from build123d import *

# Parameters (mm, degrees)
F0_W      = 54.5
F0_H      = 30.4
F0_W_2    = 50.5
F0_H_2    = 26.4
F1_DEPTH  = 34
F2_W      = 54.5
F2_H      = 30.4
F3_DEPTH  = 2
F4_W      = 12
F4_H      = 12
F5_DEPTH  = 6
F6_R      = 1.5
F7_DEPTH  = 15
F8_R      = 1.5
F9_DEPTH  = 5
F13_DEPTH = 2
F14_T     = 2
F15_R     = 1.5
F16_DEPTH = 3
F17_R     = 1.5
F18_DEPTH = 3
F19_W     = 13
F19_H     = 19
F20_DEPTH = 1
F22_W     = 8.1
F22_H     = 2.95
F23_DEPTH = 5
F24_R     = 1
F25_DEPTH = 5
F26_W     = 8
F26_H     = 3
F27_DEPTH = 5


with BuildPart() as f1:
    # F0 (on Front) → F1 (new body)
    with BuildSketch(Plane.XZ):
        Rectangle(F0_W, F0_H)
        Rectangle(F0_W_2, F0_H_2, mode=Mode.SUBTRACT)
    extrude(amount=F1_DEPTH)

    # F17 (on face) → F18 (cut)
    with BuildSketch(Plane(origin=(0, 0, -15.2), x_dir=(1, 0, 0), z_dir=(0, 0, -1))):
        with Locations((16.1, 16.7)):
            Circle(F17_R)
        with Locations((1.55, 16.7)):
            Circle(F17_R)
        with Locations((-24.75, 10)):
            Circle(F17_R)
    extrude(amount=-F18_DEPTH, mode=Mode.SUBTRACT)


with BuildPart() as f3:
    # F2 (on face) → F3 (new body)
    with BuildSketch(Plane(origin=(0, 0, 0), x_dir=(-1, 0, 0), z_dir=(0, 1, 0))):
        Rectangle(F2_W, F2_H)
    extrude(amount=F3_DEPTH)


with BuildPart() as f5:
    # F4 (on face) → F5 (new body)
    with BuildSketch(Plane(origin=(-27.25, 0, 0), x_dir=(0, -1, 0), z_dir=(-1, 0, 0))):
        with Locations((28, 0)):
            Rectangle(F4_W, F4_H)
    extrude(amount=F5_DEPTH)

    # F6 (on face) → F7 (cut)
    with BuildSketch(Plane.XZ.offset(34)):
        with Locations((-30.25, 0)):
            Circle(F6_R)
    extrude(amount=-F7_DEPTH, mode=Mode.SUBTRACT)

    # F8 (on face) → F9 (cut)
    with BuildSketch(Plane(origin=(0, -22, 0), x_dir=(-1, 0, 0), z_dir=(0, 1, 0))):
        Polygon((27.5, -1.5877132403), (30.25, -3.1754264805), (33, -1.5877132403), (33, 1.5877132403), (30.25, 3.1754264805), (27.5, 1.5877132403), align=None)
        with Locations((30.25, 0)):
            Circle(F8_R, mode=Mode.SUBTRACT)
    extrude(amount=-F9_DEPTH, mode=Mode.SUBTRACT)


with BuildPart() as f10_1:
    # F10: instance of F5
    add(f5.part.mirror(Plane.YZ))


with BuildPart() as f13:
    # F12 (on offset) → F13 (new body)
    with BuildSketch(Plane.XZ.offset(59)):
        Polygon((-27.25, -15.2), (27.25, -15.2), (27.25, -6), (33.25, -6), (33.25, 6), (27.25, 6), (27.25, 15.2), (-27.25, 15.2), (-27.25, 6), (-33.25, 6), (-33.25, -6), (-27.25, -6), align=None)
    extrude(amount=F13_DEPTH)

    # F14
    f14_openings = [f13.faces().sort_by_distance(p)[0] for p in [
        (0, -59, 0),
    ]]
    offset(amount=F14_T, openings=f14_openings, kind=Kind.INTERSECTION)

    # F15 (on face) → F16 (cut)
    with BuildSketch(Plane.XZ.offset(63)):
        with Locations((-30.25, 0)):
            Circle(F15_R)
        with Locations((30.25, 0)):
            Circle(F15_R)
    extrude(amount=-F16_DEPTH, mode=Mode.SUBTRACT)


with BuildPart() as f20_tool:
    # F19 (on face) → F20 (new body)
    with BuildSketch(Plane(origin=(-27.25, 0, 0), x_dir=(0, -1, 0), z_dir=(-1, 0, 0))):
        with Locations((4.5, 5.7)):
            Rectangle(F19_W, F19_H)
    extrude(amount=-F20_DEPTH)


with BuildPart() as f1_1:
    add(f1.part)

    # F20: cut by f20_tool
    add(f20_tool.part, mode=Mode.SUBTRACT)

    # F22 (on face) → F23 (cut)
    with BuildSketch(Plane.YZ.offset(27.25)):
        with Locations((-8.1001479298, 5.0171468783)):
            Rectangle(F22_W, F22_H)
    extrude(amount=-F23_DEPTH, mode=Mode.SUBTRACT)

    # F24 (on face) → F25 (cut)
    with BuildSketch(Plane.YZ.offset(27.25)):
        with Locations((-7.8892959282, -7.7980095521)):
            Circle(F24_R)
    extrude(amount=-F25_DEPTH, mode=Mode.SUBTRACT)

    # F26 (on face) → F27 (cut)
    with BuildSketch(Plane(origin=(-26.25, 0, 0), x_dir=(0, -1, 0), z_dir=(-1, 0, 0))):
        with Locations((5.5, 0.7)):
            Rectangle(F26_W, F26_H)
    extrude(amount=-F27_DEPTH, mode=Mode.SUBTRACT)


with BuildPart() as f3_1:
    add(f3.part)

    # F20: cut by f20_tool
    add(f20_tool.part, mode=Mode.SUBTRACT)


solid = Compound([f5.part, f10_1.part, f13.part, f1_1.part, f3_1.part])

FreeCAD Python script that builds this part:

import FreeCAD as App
import Part
import Sketcher

V = App.Vector
Q = App.Units.Quantity


def faces_at(feature, points):
    """Names of the faces that lie closest to the given points."""
    faces = feature.Shape.Faces
    near = lambda p: min(range(len(faces)), key=lambda i: faces[i].distToShape(Part.Vertex(*p))[0])
    return sorted({f"Face{near(p) + 1}" for p in points})

doc = App.newDocument("Part")
body = doc.addObject("PartDesign::Body", "Body")

sketch1 = body.newObject("Sketcher::SketchObject", "Sketch")
sketch1.AttachmentSupport = (doc.getObject("XZ_Plane"), [""])
sketch1.MapMode = "FlatFace"
sketch1.addGeometry(Part.LineSegment(V(-27.25, 15.2, 0), V(-27.25, -15.2, 0)), False)
sketch1.addGeometry(Part.LineSegment(V(-27.25, -15.2, 0), V(27.25, -15.2, 0)), False)
sketch1.addGeometry(Part.LineSegment(V(27.25, -15.2, 0), V(27.25, 15.2, 0)), False)
sketch1.addGeometry(Part.LineSegment(V(27.25, 15.2, 0), V(-27.25, 15.2, 0)), False)
sketch1.addGeometry(Part.LineSegment(V(25.25, -13.2, 0), V(-25.25, -13.2, 0)), False)
sketch1.addGeometry(Part.LineSegment(V(-25.25, -13.2, 0), V(-25.25, 13.2, 0)), False)
sketch1.addGeometry(Part.LineSegment(V(-25.25, 13.2, 0), V(25.25, 13.2, 0)), False)
sketch1.addGeometry(Part.LineSegment(V(25.25, 13.2, 0), V(25.25, -13.2, 0)), False)
sketch1.addConstraint(Sketcher.Constraint("Coincident", 0, 2, 1, 1))
sketch1.addConstraint(Sketcher.Constraint("Coincident", 1, 2, 2, 1))
sketch1.addConstraint(Sketcher.Constraint("Coincident", 2, 2, 3, 1))
sketch1.addConstraint(Sketcher.Constraint("Coincident", 3, 2, 0, 1))
sketch1.addConstraint(Sketcher.Constraint("Coincident", 4, 2, 5, 1))
sketch1.addConstraint(Sketcher.Constraint("Coincident", 5, 2, 6, 1))
sketch1.addConstraint(Sketcher.Constraint("Coincident", 6, 2, 7, 1))
sketch1.addConstraint(Sketcher.Constraint("Coincident", 7, 2, 4, 1))
sketch1.addConstraint(Sketcher.Constraint("Vertical", 0))
sketch1.addConstraint(Sketcher.Constraint("Horizontal", 1))
sketch1.addConstraint(Sketcher.Constraint("Vertical", 2))
sketch1.addConstraint(Sketcher.Constraint("Horizontal", 3))
sketch1.addConstraint(Sketcher.Constraint("Horizontal", 4))
sketch1.addConstraint(Sketcher.Constraint("Vertical", 5))
sketch1.addConstraint(Sketcher.Constraint("Horizontal", 6))
sketch1.addConstraint(Sketcher.Constraint("Vertical", 7))
sketch1.addConstraint(Sketcher.Constraint("Symmetric", 0, 2, 2, 2, -1, 1))
sketch1.addConstraint(Sketcher.Constraint("Symmetric", 4, 2, 6, 2, -1, 1))
sketch1.addConstraint(Sketcher.Constraint("DistanceX", 1, 1, 1, 2, 54.5))
sketch1.addConstraint(Sketcher.Constraint("DistanceX", 4, 2, 4, 1, 50.5))
sketch1.addConstraint(Sketcher.Constraint("DistanceY", 0, 2, 0, 1, 30.4))
sketch1.addConstraint(Sketcher.Constraint("DistanceY", 5, 1, 5, 2, 26.4))
pad1 = body.newObject("PartDesign::Pad", "Pad")
pad1.Profile = sketch1
pad1.Length = 34

sketch2 = body.newObject("Sketcher::SketchObject", "Sketch001")
sketch2.AttachmentSupport = (doc.getObject("XY_Plane"), [""])
sketch2.MapMode = "FlatFace"
sketch2.AttachmentOffset = App.Placement(V(0, 0, -15.2), App.Rotation())
sketch2.addGeometry(Part.Circle(V(16.1, -16.7, 0), V(0, 0, 1), 1.5), False)
sketch2.addGeometry(Part.Circle(V(1.55, -16.7, 0), V(0, 0, 1), 1.5), False)
sketch2.addGeometry(Part.Circle(V(-24.75, -10, 0), V(0, 0, 1), 1.5), False)
sketch2.addConstraint(Sketcher.Constraint("Equal", 0, 1))
sketch2.addConstraint(Sketcher.Constraint("Equal", 1, 2))
sketch2.addConstraint(Sketcher.Constraint("Horizontal", 0, 3, 1, 3))
sketch2.addConstraint(Sketcher.Constraint("Diameter", 0, 3.0))
sketch2.addConstraint(Sketcher.Constraint("DistanceY", 2, 3, -1, 1, 10.0))
sketch2.addConstraint(Sketcher.Constraint("DistanceX", -1, 1, 0, 3, 16.1))
sketch2.addConstraint(Sketcher.Constraint("DistanceY", 0, 3, -1, 1, 16.7))
sketch2.addConstraint(Sketcher.Constraint("DistanceX", 2, 3, 1, 3, 26.3))
sketch2.addConstraint(Sketcher.Constraint("DistanceX", -1, 1, 1, 3, 1.55))
pocket1 = body.newObject("PartDesign::Pocket", "Pocket")
pocket1.Profile = sketch2
pocket1.Length = 3
pocket1.Reversed = True
body2 = doc.addObject("PartDesign::Body", "Body001")

sketch3 = body2.newObject("Sketcher::SketchObject", "Sketch002")
sketch3.AttachmentSupport = (doc.getObject("XZ_Plane001"), [""])
sketch3.MapMode = "FlatFace"
sketch3.addGeometry(Part.LineSegment(V(27.25, 15.2, 0), V(27.25, -15.2, 0)), False)
sketch3.addGeometry(Part.LineSegment(V(27.25, -15.2, 0), V(-27.25, -15.2, 0)), False)
sketch3.addGeometry(Part.LineSegment(V(-27.25, -15.2, 0), V(-27.25, 15.2, 0)), False)
sketch3.addGeometry(Part.LineSegment(V(-27.25, 15.2, 0), V(27.25, 15.2, 0)), False)
sketch3.addConstraint(Sketcher.Constraint("Coincident", 0, 2, 1, 1))
sketch3.addConstraint(Sketcher.Constraint("Coincident", 1, 2, 2, 1))
sketch3.addConstraint(Sketcher.Constraint("Coincident", 2, 2, 3, 1))
sketch3.addConstraint(Sketcher.Constraint("Coincident", 3, 2, 0, 1))
sketch3.addConstraint(Sketcher.Constraint("Vertical", 0))
sketch3.addConstraint(Sketcher.Constraint("Horizontal", 1))
sketch3.addConstraint(Sketcher.Constraint("Vertical", 2))
sketch3.addConstraint(Sketcher.Constraint("Horizontal", 3))
sketch3.addConstraint(Sketcher.Constraint("Symmetric", 0, 2, 2, 2, -1, 1))
sketch3.addConstraint(Sketcher.Constraint("DistanceX", 1, 2, 1, 1, 54.5))
sketch3.addConstraint(Sketcher.Constraint("DistanceY", 0, 2, 0, 1, 30.4))
pad2 = body2.newObject("PartDesign::Pad", "Pad001")
pad2.Profile = sketch3
pad2.Length = 2
pad2.Reversed = True
body3 = doc.addObject("PartDesign::Body", "Body002")

sketch4 = body3.newObject("Sketcher::SketchObject", "Sketch003")
sketch4.AttachmentSupport = (doc.getObject("YZ_Plane002"), [""])
sketch4.MapMode = "FlatFace"
sketch4.AttachmentOffset = App.Placement(V(0, 0, -27.25), App.Rotation())
sketch4.addGeometry(Part.LineSegment(V(-22, 6, 0), V(-22, -6, 0)), False)
sketch4.addGeometry(Part.LineSegment(V(-22, -6, 0), V(-34, -6, 0)), False)
sketch4.addGeometry(Part.LineSegment(V(-34, -6, 0), V(-34, 6, 0)), False)
sketch4.addGeometry(Part.LineSegment(V(-34, 6, 0), V(-22, 6, 0)), False)
sketch4.addConstraint(Sketcher.Constraint("Coincident", 0, 2, 1, 1))
sketch4.addConstraint(Sketcher.Constraint("Coincident", 1, 2, 2, 1))
sketch4.addConstraint(Sketcher.Constraint("Coincident", 2, 2, 3, 1))
sketch4.addConstraint(Sketcher.Constraint("Coincident", 3, 2, 0, 1))
sketch4.addConstraint(Sketcher.Constraint("Vertical", 0))
sketch4.addConstraint(Sketcher.Constraint("Horizontal", 1))
sketch4.addConstraint(Sketcher.Constraint("Vertical", 2))
sketch4.addConstraint(Sketcher.Constraint("Horizontal", 3))
sketch4.addConstraint(Sketcher.Constraint("Equal", 3, 0))
sketch4.addConstraint(Sketcher.Constraint("DistanceX", 1, 2, 1, 1, 12.0))
sketch4.addConstraint(Sketcher.Constraint("DistanceX", 0, 2, -1, 1, 22.0))
sketch4.addConstraint(Sketcher.Constraint("DistanceY", 0, 2, -1, 1, 6.0))
pad3 = body3.newObject("PartDesign::Pad", "Pad002")
pad3.Profile = sketch4
pad3.Length = 6
pad3.Reversed = True

sketch5 = body3.newObject("Sketcher::SketchObject", "Sketch004")
sketch5.AttachmentSupport = (doc.getObject("XZ_Plane002"), [""])
sketch5.MapMode = "FlatFace"
sketch5.AttachmentOffset = App.Placement(V(0, 0, 34), App.Rotation())
sketch5.addGeometry(Part.Circle(V(-30.25, 0, 0), V(0, 0, 1), 1.5), False)
sketch5.addConstraint(Sketcher.Constraint("PointOnObject", 0, 3, -1))
sketch5.addConstraint(Sketcher.Constraint("Diameter", 0, 3.0))
sketch5.addConstraint(Sketcher.Constraint("DistanceX", 0, 3, -1, 1, 30.25))
pocket2 = body3.newObject("PartDesign::Pocket", "Pocket001")
pocket2.Profile = sketch5
pocket2.Length = 15

sketch6 = body3.newObject("Sketcher::SketchObject", "Sketch005")
sketch6.AttachmentSupport = (doc.getObject("XZ_Plane002"), [""])
sketch6.MapMode = "FlatFace"
sketch6.AttachmentOffset = App.Placement(V(0, 0, 22), App.Rotation())
sketch6.addGeometry(Part.LineSegment(V(-27.5, -1.587713, 0), V(-30.25, -3.175426, 0)), False)
sketch6.addGeometry(Part.LineSegment(V(-30.25, -3.175426, 0), V(-33, -1.587713, 0)), False)
sketch6.addGeometry(Part.LineSegment(V(-33, -1.587713, 0), V(-33, 1.587713, 0)), False)
sketch6.addGeometry(Part.LineSegment(V(-33, 1.587713, 0), V(-30.25, 3.175426, 0)), False)
sketch6.addGeometry(Part.LineSegment(V(-30.25, 3.175426, 0), V(-27.5, 1.587713, 0)), False)
sketch6.addGeometry(Part.LineSegment(V(-27.5, 1.587713, 0), V(-27.5, -1.587713, 0)), False)
sketch6.addGeometry(Part.Circle(V(-30.25, 0, 0), V(0, 0, 1), 1.5), False)
sketch6.addConstraint(Sketcher.Constraint("Coincident", 0, 2, 1, 1))
sketch6.addConstraint(Sketcher.Constraint("Coincident", 1, 2, 2, 1))
sketch6.addConstraint(Sketcher.Constraint("Coincident", 2, 2, 3, 1))
sketch6.addConstraint(Sketcher.Constraint("Coincident", 3, 2, 4, 1))
sketch6.addConstraint(Sketcher.Constraint("Coincident", 4, 2, 5, 1))
sketch6.addConstraint(Sketcher.Constraint("Coincident", 5, 2, 0, 1))
sketch6.addConstraint(Sketcher.Constraint("Vertical", 2))
sketch6.addConstraint(Sketcher.Constraint("Vertical", 5))
sketch6.addConstraint(Sketcher.Constraint("Symmetric", 0, 2, 3, 2, -1))
sketch6.addConstraint(Sketcher.Constraint("PointOnObject", 6, 3, -1))
sketch6.addConstraint(Sketcher.Constraint("Parallel", 0, 3))
sketch6.addConstraint(Sketcher.Constraint("Parallel", 1, 4))
sketch6.addConstraint(Sketcher.Constraint("Horizontal", 2, 2, 4, 2))
sketch6.addConstraint(Sketcher.Constraint("Horizontal", 1, 2, 5, 2))
sketch6.addConstraint(Sketcher.Constraint("Vertical", 6, 3, 0, 2))
sketch6.addConstraint(Sketcher.Constraint("Diameter", 6, 3.0))
sketch6.addConstraint(Sketcher.Constraint("Angle", 0, Q("-150 deg")))
sketch6.addConstraint(Sketcher.Constraint("DistanceX", 1, 2, -1, 1, 33.0))
sketch6.addConstraint(Sketcher.Constraint("DistanceX", 4, 2, -1, 1, 27.5))
sketch6.addConstraint(Sketcher.Constraint("DistanceY", 2, 1, 2, 2, 3.175426))
pocket3 = body3.newObject("PartDesign::Pocket", "Pocket002")
pocket3.Profile = sketch6
pocket3.Length = 5
pocket3.Reversed = True
body4 = doc.addObject("PartDesign::Body", "Body003")
doc.recompute()

mirroring = doc.addObject("Part::Mirroring", "Mirroring")
mirroring.Source = body3
mirroring.Base = V(0, 0, 0)
mirroring.Normal = V(1, 0, 0)
body4.BaseFeature = mirroring
doc.recompute()
body5 = doc.addObject("PartDesign::Body", "Body004")

sketch7 = body5.newObject("Sketcher::SketchObject", "Sketch006")
sketch7.AttachmentSupport = (doc.getObject("XZ_Plane004"), [""])
sketch7.MapMode = "FlatFace"
sketch7.AttachmentOffset = App.Placement(V(0, 0, 59), App.Rotation())
sketch7.addGeometry(Part.LineSegment(V(-27.25, -15.2, 0), V(27.25, -15.2, 0)), False)
sketch7.addGeometry(Part.LineSegment(V(27.25, -15.2, 0), V(27.25, -6, 0)), False)
sketch7.addGeometry(Part.LineSegment(V(27.25, -6, 0), V(33.25, -6, 0)), False)
sketch7.addGeometry(Part.LineSegment(V(33.25, -6, 0), V(33.25, 6, 0)), False)
sketch7.addGeometry(Part.LineSegment(V(33.25, 6, 0), V(27.25, 6, 0)), False)
sketch7.addGeometry(Part.LineSegment(V(27.25, 6, 0), V(27.25, 15.2, 0)), False)
sketch7.addGeometry(Part.LineSegment(V(27.25, 15.2, 0), V(-27.25, 15.2, 0)), False)
sketch7.addGeometry(Part.LineSegment(V(-27.25, 15.2, 0), V(-27.25, 6, 0)), False)
sketch7.addGeometry(Part.LineSegment(V(-27.25, 6, 0), V(-33.25, 6, 0)), False)
sketch7.addGeometry(Part.LineSegment(V(-33.25, 6, 0), V(-33.25, -6, 0)), False)
sketch7.addGeometry(Part.LineSegment(V(-33.25, -6, 0), V(-27.25, -6, 0)), False)
sketch7.addGeometry(Part.LineSegment(V(-27.25, -6, 0), V(-27.25, -15.2, 0)), False)
sketch7.addConstraint(Sketcher.Constraint("Coincident", 0, 2, 1, 1))
sketch7.addConstraint(Sketcher.Constraint("Coincident", 1, 2, 2, 1))
sketch7.addConstraint(Sketcher.Constraint("Coincident", 2, 2, 3, 1))
sketch7.addConstraint(Sketcher.Constraint("Coincident", 3, 2, 4, 1))
sketch7.addConstraint(Sketcher.Constraint("Coincident", 4, 2, 5, 1))
sketch7.addConstraint(Sketcher.Constraint("Coincident", 5, 2, 6, 1))
sketch7.addConstraint(Sketcher.Constraint("Coincident", 6, 2, 7, 1))
sketch7.addConstraint(Sketcher.Constraint("Coincident", 7, 2, 8, 1))
sketch7.addConstraint(Sketcher.Constraint("Coincident", 8, 2, 9, 1))
sketch7.addConstraint(Sketcher.Constraint("Coincident", 9, 2, 10, 1))
sketch7.addConstraint(Sketcher.Constraint("Coincident", 10, 2, 11, 1))
sketch7.addConstraint(Sketcher.Constraint("Coincident", 11, 2, 0, 1))
sketch7.addConstraint(Sketcher.Constraint("Horizontal", 0))
sketch7.addConstraint(Sketcher.Constraint("Vertical", 1))
sketch7.addConstraint(Sketcher.Constraint("Horizontal", 2))
sketch7.addConstraint(Sketcher.Constraint("Vertical", 3))
sketch7.addConstraint(Sketcher.Constraint("Horizontal", 4))
sketch7.addConstraint(Sketcher.Constraint("Vertical", 5))
sketch7.addConstraint(Sketcher.Constraint("Horizontal", 6))
sketch7.addConstraint(Sketcher.Constraint("Vertical", 7))
sketch7.addConstraint(Sketcher.Constraint("Horizontal", 8))
sketch7.addConstraint(Sketcher.Constraint("Vertical", 9))
sketch7.addConstraint(Sketcher.Constraint("Horizontal", 10))
sketch7.addConstraint(Sketcher.Constraint("Vertical", 11))
sketch7.addConstraint(Sketcher.Constraint("Symmetric", 0, 2, 6, 2, -1, 1))
sketch7.addConstraint(Sketcher.Constraint("Symmetric", 2, 2, 8, 2, -1, 1))
sketch7.addConstraint(Sketcher.Constraint("Symmetric", 4, 2, 10, 2, -1, 1))
sketch7.addConstraint(Sketcher.Constraint("Symmetric", 4, 2, 7, 2, -2))
sketch7.addConstraint(Sketcher.Constraint("DistanceX", 2, 1, 2, 2, 6.0))
sketch7.addConstraint(Sketcher.Constraint("DistanceY", 3, 1, 3, 2, 12.0))
sketch7.addConstraint(Sketcher.Constraint("DistanceX", 0, 1, 0, 2, 54.5))
sketch7.addConstraint(Sketcher.Constraint("DistanceY", 1, 1, 1, 2, 9.2))
pad4 = body5.newObject("PartDesign::Pad", "Pad003")
pad4.Profile = sketch7
pad4.Length = 2
doc.recompute()

thickness = body5.newObject("PartDesign::Thickness", "Thickness")
thickness.Base = (pad4, faces_at(pad4, [(0, -59, 0)]))
thickness.Value = 2
thickness.Reversed = False
thickness.Join = "Intersection"

sketch8 = body5.newObject("Sketcher::SketchObject", "Sketch007")
sketch8.AttachmentSupport = (doc.getObject("XZ_Plane004"), [""])
sketch8.MapMode = "FlatFace"
sketch8.AttachmentOffset = App.Placement(V(0, 0, 63), App.Rotation())
sketch8.addGeometry(Part.Circle(V(-30.25, 0, 0), V(0, 0, 1), 1.5), False)
sketch8.addGeometry(Part.Circle(V(30.25, 0, 0), V(0, 0, 1), 1.5), False)
sketch8.addConstraint(Sketcher.Constraint("Equal", 0, 1))
sketch8.addConstraint(Sketcher.Constraint("Symmetric", 0, 3, 1, 3, -1, 1))
sketch8.addConstraint(Sketcher.Constraint("PointOnObject", 0, 3, -1))
sketch8.addConstraint(Sketcher.Constraint("Diameter", 0, 3.0))
sketch8.addConstraint(Sketcher.Constraint("DistanceX", 0, 3, 1, 3, 60.5))
pocket4 = body5.newObject("PartDesign::Pocket", "Pocket003")
pocket4.Profile = sketch8
pocket4.Length = 3
body6 = doc.addObject("PartDesign::Body", "Body005")

sketch9 = body6.newObject("Sketcher::SketchObject", "Sketch008")
sketch9.AttachmentSupport = (doc.getObject("YZ_Plane005"), [""])
sketch9.MapMode = "FlatFace"
sketch9.AttachmentOffset = App.Placement(V(0, 0, -27.25), App.Rotation())
sketch9.addGeometry(Part.LineSegment(V(2, 15.2, 0), V(2, -3.8, 0)), False)
sketch9.addGeometry(Part.LineSegment(V(2, -3.8, 0), V(-11, -3.8, 0)), False)
sketch9.addGeometry(Part.LineSegment(V(-11, -3.8, 0), V(-11, 15.2, 0)), False)
sketch9.addGeometry(Part.LineSegment(V(-11, 15.2, 0), V(2, 15.2, 0)), False)
sketch9.addConstraint(Sketcher.Constraint("Coincident", 0, 2, 1, 1))
sketch9.addConstraint(Sketcher.Constraint("Coincident", 1, 2, 2, 1))
sketch9.addConstraint(Sketcher.Constraint("Coincident", 2, 2, 3, 1))
sketch9.addConstraint(Sketcher.Constraint("Coincident", 3, 2, 0, 1))
sketch9.addConstraint(Sketcher.Constraint("Vertical", 0))
sketch9.addConstraint(Sketcher.Constraint("Horizontal", 1))
sketch9.addConstraint(Sketcher.Constraint("Vertical", 2))
sketch9.addConstraint(Sketcher.Constraint("Horizontal", 3))
sketch9.addConstraint(Sketcher.Constraint("DistanceX", 1, 2, 1, 1, 13.0))
sketch9.addConstraint(Sketcher.Constraint("DistanceY", 0, 2, 0, 1, 19.0))
sketch9.addConstraint(Sketcher.Constraint("DistanceX", -1, 1, 0, 2, 2.0))
sketch9.addConstraint(Sketcher.Constraint("DistanceY", 0, 2, -1, 1, 3.8))
pad5 = body6.newObject("PartDesign::Pad", "Pad004")
pad5.Profile = sketch9
pad5.Length = 1
doc.recompute()

body7 = doc.addObject("PartDesign::Body", "Body006")
body7.BaseFeature = body6
boolean = body.newObject("PartDesign::Boolean", "Boolean")
boolean.Type = "Cut"
boolean.addObjects([body7])
doc.recompute()

sketch10 = body.newObject("Sketcher::SketchObject", "Sketch009")
sketch10.AttachmentSupport = (doc.getObject("YZ_Plane"), [""])
sketch10.MapMode = "FlatFace"
sketch10.AttachmentOffset = App.Placement(V(0, 0, 27.25), App.Rotation())
sketch10.addGeometry(Part.LineSegment(V(-12.150148, 6.492147, 0), V(-12.150148, 3.542147, 0)), False)
sketch10.addGeometry(Part.LineSegment(V(-12.150148, 3.542147, 0), V(-4.050148, 3.542147, 0)), False)
sketch10.addGeometry(Part.LineSegment(V(-4.050148, 3.542147, 0), V(-4.050148, 6.492147, 0)), False)
sketch10.addGeometry(Part.LineSegment(V(-4.050148, 6.492147, 0), V(-12.150148, 6.492147, 0)), False)
sketch10.addConstraint(Sketcher.Constraint("Coincident", 0, 2, 1, 1))
sketch10.addConstraint(Sketcher.Constraint("Coincident", 1, 2, 2, 1))
sketch10.addConstraint(Sketcher.Constraint("Coincident", 2, 2, 3, 1))
sketch10.addConstraint(Sketcher.Constraint("Coincident", 3, 2, 0, 1))
sketch10.addConstraint(Sketcher.Constraint("Vertical", 0))
sketch10.addConstraint(Sketcher.Constraint("Horizontal", 1))
sketch10.addConstraint(Sketcher.Constraint("Vertical", 2))
sketch10.addConstraint(Sketcher.Constraint("Horizontal", 3))
sketch10.addConstraint(Sketcher.Constraint("DistanceX", 1, 1, 1, 2, 8.1))
sketch10.addConstraint(Sketcher.Constraint("DistanceY", 0, 2, 0, 1, 2.95))
sketch10.addConstraint(Sketcher.Constraint("DistanceX", 0, 2, -1, 1, 12.150148))
sketch10.addConstraint(Sketcher.Constraint("DistanceY", -1, 1, 0, 2, 3.542147))
pocket5 = body.newObject("PartDesign::Pocket", "Pocket004")
pocket5.Profile = sketch10
pocket5.Length = 5

sketch11 = body.newObject("Sketcher::SketchObject", "Sketch010")
sketch11.AttachmentSupport = (doc.getObject("YZ_Plane"), [""])
sketch11.MapMode = "FlatFace"
sketch11.AttachmentOffset = App.Placement(V(0, 0, 27.25), App.Rotation())
sketch11.addGeometry(Part.Circle(V(-7.889296, -7.79801, 0), V(0, 0, 1), 1), False)
sketch11.addConstraint(Sketcher.Constraint("Diameter", 0, 2.0))
sketch11.addConstraint(Sketcher.Constraint("DistanceY", 0, 3, -1, 1, 7.79801))
sketch11.addConstraint(Sketcher.Constraint("DistanceX", 0, 3, -1, 1, 7.889296))
pocket6 = body.newObject("PartDesign::Pocket", "Pocket005")
pocket6.Profile = sketch11
pocket6.Length = 5

sketch12 = body.newObject("Sketcher::SketchObject", "Sketch011")
sketch12.AttachmentSupport = (doc.getObject("YZ_Plane"), [""])
sketch12.MapMode = "FlatFace"
sketch12.AttachmentOffset = App.Placement(V(0, 0, -26.25), App.Rotation())
sketch12.addGeometry(Part.LineSegment(V(-1.5, 2.2, 0), V(-1.5, -0.8, 0)), False)
sketch12.addGeometry(Part.LineSegment(V(-1.5, -0.8, 0), V(-9.5, -0.8, 0)), False)
sketch12.addGeometry(Part.LineSegment(V(-9.5, -0.8, 0), V(-9.5, 2.2, 0)), False)
sketch12.addGeometry(Part.LineSegment(V(-9.5, 2.2, 0), V(-1.5, 2.2, 0)), False)
sketch12.addConstraint(Sketcher.Constraint("Coincident", 0, 2, 1, 1))
sketch12.addConstraint(Sketcher.Constraint("Coincident", 1, 2, 2, 1))
sketch12.addConstraint(Sketcher.Constraint("Coincident", 2, 2, 3, 1))
sketch12.addConstraint(Sketcher.Constraint("Coincident", 3, 2, 0, 1))
sketch12.addConstraint(Sketcher.Constraint("Vertical", 0))
sketch12.addConstraint(Sketcher.Constraint("Horizontal", 1))
sketch12.addConstraint(Sketcher.Constraint("Vertical", 2))
sketch12.addConstraint(Sketcher.Constraint("Horizontal", 3))
sketch12.addConstraint(Sketcher.Constraint("DistanceX", 1, 2, 1, 1, 8.0))
sketch12.addConstraint(Sketcher.Constraint("DistanceY", 0, 2, 0, 1, 3.0))
sketch12.addConstraint(Sketcher.Constraint("DistanceX", 0, 2, -1, 1, 1.5))
sketch12.addConstraint(Sketcher.Constraint("DistanceY", 0, 2, -1, 1, 0.8))
pocket7 = body.newObject("PartDesign::Pocket", "Pocket006")
pocket7.Profile = sketch12
pocket7.Length = 5
pocket7.Reversed = True
doc.recompute()

boolean2 = body2.newObject("PartDesign::Boolean", "Boolean001")
boolean2.Type = "Cut"
boolean2.addObjects([body6])
mirroring.Visibility = False

doc.recompute()
